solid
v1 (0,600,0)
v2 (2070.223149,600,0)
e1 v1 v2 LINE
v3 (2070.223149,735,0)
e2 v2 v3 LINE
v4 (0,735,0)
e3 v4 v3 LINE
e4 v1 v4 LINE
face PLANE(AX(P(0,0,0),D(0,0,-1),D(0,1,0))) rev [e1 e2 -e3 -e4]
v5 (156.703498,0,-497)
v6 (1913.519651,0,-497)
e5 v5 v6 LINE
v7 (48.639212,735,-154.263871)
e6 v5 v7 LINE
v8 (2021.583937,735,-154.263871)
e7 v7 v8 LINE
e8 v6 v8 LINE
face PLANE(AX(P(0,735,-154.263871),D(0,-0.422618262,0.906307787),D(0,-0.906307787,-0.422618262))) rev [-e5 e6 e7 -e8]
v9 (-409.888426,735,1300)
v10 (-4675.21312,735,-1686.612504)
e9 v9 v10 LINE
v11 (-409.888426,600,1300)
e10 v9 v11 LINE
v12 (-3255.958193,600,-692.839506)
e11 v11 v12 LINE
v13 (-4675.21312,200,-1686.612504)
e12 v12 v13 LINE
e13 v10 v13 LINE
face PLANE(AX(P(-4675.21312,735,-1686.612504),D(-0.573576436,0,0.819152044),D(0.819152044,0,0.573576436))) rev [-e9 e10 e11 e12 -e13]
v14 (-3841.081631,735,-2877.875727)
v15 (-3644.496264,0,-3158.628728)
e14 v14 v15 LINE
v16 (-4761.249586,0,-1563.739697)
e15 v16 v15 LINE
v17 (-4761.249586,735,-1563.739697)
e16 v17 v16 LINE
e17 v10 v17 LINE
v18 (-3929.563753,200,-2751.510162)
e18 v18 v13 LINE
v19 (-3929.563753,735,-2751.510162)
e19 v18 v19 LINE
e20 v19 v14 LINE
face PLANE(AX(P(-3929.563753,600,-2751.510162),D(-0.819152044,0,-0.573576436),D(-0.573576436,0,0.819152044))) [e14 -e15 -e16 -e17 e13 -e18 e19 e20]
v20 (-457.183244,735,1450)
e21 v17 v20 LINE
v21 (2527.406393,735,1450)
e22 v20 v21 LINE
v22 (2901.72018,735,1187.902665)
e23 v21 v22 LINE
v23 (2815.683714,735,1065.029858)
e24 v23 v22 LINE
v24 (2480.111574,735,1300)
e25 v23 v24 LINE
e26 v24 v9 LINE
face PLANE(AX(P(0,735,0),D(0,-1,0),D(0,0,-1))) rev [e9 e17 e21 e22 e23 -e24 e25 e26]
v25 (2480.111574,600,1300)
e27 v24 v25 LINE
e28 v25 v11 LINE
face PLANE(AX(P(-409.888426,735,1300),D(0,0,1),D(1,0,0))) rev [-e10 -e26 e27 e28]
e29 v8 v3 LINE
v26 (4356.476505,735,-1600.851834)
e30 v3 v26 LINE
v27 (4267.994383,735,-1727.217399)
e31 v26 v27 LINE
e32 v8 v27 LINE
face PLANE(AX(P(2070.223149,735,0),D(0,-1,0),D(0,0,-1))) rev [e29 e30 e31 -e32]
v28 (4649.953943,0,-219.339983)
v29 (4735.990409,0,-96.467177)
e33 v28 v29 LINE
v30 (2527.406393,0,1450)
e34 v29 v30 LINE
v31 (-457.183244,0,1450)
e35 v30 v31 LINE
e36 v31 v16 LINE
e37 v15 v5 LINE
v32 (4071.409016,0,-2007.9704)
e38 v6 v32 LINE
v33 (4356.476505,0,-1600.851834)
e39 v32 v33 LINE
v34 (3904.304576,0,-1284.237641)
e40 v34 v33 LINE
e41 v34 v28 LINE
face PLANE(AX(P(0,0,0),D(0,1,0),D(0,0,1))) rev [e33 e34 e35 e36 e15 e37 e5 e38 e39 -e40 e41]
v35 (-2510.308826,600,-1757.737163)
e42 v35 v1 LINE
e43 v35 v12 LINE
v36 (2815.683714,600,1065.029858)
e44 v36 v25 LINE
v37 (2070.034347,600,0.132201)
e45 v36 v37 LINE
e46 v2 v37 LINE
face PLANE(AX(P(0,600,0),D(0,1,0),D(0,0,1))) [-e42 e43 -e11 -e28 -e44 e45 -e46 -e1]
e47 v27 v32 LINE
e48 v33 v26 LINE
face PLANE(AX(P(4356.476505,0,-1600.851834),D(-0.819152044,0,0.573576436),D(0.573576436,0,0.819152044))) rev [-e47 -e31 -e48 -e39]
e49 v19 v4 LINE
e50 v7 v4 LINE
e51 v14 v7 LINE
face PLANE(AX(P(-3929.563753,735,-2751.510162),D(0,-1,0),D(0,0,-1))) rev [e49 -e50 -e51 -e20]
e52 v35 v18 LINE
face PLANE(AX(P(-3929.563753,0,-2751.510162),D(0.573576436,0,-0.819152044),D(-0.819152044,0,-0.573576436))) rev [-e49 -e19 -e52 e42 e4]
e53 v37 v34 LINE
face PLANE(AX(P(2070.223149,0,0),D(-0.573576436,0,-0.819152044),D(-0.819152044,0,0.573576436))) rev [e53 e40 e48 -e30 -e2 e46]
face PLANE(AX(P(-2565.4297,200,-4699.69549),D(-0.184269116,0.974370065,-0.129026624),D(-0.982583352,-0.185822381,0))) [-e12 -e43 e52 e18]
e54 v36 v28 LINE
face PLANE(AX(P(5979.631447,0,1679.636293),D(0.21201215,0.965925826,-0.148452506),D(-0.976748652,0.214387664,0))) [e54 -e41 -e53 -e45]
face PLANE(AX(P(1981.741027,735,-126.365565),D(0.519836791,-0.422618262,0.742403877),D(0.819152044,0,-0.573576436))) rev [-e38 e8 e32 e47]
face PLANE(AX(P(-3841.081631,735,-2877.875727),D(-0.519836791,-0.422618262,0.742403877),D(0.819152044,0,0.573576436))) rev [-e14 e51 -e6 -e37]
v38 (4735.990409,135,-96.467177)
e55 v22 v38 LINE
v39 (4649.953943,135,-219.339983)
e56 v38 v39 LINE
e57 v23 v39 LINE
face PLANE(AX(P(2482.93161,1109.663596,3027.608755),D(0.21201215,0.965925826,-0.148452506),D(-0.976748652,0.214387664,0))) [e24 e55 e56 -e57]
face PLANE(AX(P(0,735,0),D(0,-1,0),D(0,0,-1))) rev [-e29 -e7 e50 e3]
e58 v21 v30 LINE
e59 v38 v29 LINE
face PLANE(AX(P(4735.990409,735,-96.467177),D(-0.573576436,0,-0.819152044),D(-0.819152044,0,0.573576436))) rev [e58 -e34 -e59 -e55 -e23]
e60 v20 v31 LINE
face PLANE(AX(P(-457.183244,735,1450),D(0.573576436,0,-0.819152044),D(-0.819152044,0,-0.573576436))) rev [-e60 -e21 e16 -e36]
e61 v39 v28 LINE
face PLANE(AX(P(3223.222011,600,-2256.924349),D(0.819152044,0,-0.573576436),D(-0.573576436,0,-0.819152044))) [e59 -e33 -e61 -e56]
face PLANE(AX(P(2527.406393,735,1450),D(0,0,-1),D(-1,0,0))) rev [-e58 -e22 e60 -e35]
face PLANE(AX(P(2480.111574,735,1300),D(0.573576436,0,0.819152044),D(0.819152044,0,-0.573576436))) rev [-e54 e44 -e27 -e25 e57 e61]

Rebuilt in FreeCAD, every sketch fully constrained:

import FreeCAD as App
import Part
import Sketcher
from FreeCAD import Vector
Q = App.Units.Quantity

doc = App.newDocument("Part")
params = doc.addObject("Spreadsheet::Sheet", "Params")
for row, (alias, value) in enumerate([
    ("sketch1_width", "2890 mm"),
    ("sketch1_length", "1300 mm"),
    ("sketch1_length2", "5207 mm"),
    ("sketch1_length3", "2239 mm"),
    ("pad1_length", "600 mm"),
    ("sketch2_width", "2890 mm"),
    ("sketch2_length", "150 mm"),
    ("sketch2_length2", "5207 mm"),
    ("pad2_length", "135 mm"),
    ("pad2_length2", "600 mm"),
    ("sketch3_width", "497 mm"),
    ("sketch3_height", "734.999999 mm"),
    ("sketch4_length", "2791 mm"),
    ("sketch5_height", "599.999999 mm"),
    ("pocket1_length", "1300 mm"),
    ("sketch6_height", "599.999999 mm"),
    ("sketch7_height", "534.999999 mm"),
    ("pocket3_length", "1300 mm"),
], start=1):
    params.set(f"A{row}", alias)
    params.set(f"B{row}", "=" + value)
    params.setAlias(f"B{row}", alias)

body = doc.addObject("PartDesign::Body", "Body")

sketch1 = body.newObject("Sketcher::SketchObject", "Sketch")
sketch1.AttachmentSupport = (doc.getObject("XZ_Plane"), [""])
sketch1.MapMode = "FlatFace"
sketch1.addGeometry(Part.LineSegment(Vector(2070, 0, 0), Vector(0, 0, 0)), False)
sketch1.addGeometry(Part.LineSegment(Vector(0, 0, 0), Vector(-3930, -2752, 0)), False)
sketch1.addGeometry(Part.LineSegment(Vector(-3930, -2752, 0), Vector(-4675, -1687, 0)), False)
sketch1.addGeometry(Part.LineSegment(Vector(-4675, -1687, 0), Vector(-410, 1300, 0)), False)
sketch1.addGeometry(Part.LineSegment(Vector(-410, 1300, 0), Vector(2480, 1300, 0)), False)
sketch1.addGeometry(Part.LineSegment(Vector(2480, 1300, 0), Vector(2816, 1065, 0)), False)
sketch1.addGeometry(Part.LineSegment(Vector(2816, 1065, 0), Vector(4650, -219, 0)), False)
sketch1.addGeometry(Part.LineSegment(Vector(4650, -219, 0), Vector(3904, -1284, 0)), False)
sketch1.addGeometry(Part.LineSegment(Vector(3904, -1284, 0), Vector(2070, 0, 0)), False)
sketch1.addConstraint(Sketcher.Constraint("Coincident", 0, 2, 1, 1))
sketch1.addConstraint(Sketcher.Constraint("Coincident", 1, 2, 2, 1))
sketch1.addConstraint(Sketcher.Constraint("Coincident", 2, 2, 3, 1))
sketch1.addConstraint(Sketcher.Constraint("Coincident", 3, 2, 4, 1))
sketch1.addConstraint(Sketcher.Constraint("Coincident", 4, 2, 5, 1))
sketch1.addConstraint(Sketcher.Constraint("Coincident", 5, 2, 6, 1))
sketch1.addConstraint(Sketcher.Constraint("Coincident", 6, 2, 7, 1))
sketch1.addConstraint(Sketcher.Constraint("Coincident", 7, 2, 8, 1))
sketch1.addConstraint(Sketcher.Constraint("Coincident", 8, 2, 0, 1))
sketch1.addConstraint(Sketcher.Constraint("Horizontal", 0))
sketch1.addConstraint(Sketcher.Constraint("Horizontal", 4))
sketch1.addConstraint(Sketcher.Constraint("Coincident", 0, 2, -1, 1))
sketch1.addConstraint(Sketcher.Constraint("Perpendicular", 1, 2))
sketch1.addConstraint(Sketcher.Constraint("Perpendicular", 2, 3))
sketch1.addConstraint(Sketcher.Constraint("Parallel", 5, 6))
sketch1.addConstraint(Sketcher.Constraint("Perpendicular", 6, 7))
sketch1.addConstraint(Sketcher.Constraint("Perpendicular", 7, 8))
sketch1.addConstraint(Sketcher.Constraint("Equal", 2, 7))
sketch1.addConstraint(Sketcher.Constraint("Equal", 6, 8))
sketch1.addConstraint(Sketcher.Constraint("DistanceX", 4, 1, 4, 2, Q("2890 mm")))
sketch1.addConstraint(Sketcher.Constraint("Angle", 1, Q("-145 deg")))
sketch1.addConstraint(Sketcher.Constraint("Angle", 5, Q("-35 deg")))
sketch1.addConstraint(Sketcher.Constraint("Distance", 2, Q("1300 mm")))
sketch1.addConstraint(Sketcher.Constraint("Distance", 3, Q("5207 mm")))
sketch1.addConstraint(Sketcher.Constraint("Distance", 6, Q("2239 mm")))
sketch1.addConstraint(Sketcher.Constraint("DistanceY", -1, 1, 3, 2, Q("1300 mm")))
sketch1.setExpression("Constraints[19]", "Params.sketch1_width")
sketch1.setExpression("Constraints[22]", "Params.sketch1_length")
sketch1.setExpression("Constraints[23]", "Params.sketch1_length2")
sketch1.setExpression("Constraints[24]", "Params.sketch1_length3")
pad1 = body.newObject("PartDesign::Pad", "Pad")
pad1.Profile = sketch1
pad1.setExpression("Length", "Params.pad1_length")
pad1.Reversed = True

sketch2 = body.newObject("Sketcher::SketchObject", "Sketch001")
sketch2.AttachmentSupport = (doc.getObject("XZ_Plane"), [""])
sketch2.MapMode = "FlatFace"
sketch2.AttachmentOffset = App.Placement(Vector(0, 0, -600), App.Rotation())
sketch2.addGeometry(Part.LineSegment(Vector(4736, -96, 0), Vector(4650, -219, 0)), False)
sketch2.addGeometry(Part.LineSegment(Vector(4650, -219, 0), Vector(2480, 1300, 0)), False)
sketch2.addGeometry(Part.LineSegment(Vector(2480, 1300, 0), Vector(-410, 1300, 0)), False)
sketch2.addGeometry(Part.LineSegment(Vector(-410, 1300, 0), Vector(-4675, -1687, 0)), False)
sketch2.addGeometry(Part.LineSegment(Vector(-4675, -1687, 0), Vector(-4761, -1564, 0)), False)
sketch2.addGeometry(Part.LineSegment(Vector(-4761, -1564, 0), Vector(-457, 1450, 0)), False)
sketch2.addGeometry(Part.LineSegment(Vector(-457, 1450, 0), Vector(2527, 1450, 0)), False)
sketch2.addGeometry(Part.LineSegment(Vector(2527, 1450, 0), Vector(4736, -96, 0)), False)
sketch2.addConstraint(Sketcher.Constraint("Coincident", 0, 2, 1, 1))
sketch2.addConstraint(Sketcher.Constraint("Coincident", 1, 2, 2, 1))
sketch2.addConstraint(Sketcher.Constraint("Coincident", 2, 2, 3, 1))
sketch2.addConstraint(Sketcher.Constraint("Coincident", 3, 2, 4, 1))
sketch2.addConstraint(Sketcher.Constraint("Coincident", 4, 2, 5, 1))
sketch2.addConstraint(Sketcher.Constraint("Coincident", 5, 2, 6, 1))
sketch2.addConstraint(Sketcher.Constraint("Coincident", 6, 2, 7, 1))
sketch2.addConstraint(Sketcher.Constraint("Coincident", 7, 2, 0, 1))
sketch2.addConstraint(Sketcher.Constraint("Horizontal", 2))
sketch2.addConstraint(Sketcher.Constraint("Horizontal", 6))
sketch2.addConstraint(Sketcher.Constraint("Perpendicular", 0, 1))
sketch2.addConstraint(Sketcher.Constraint("Perpendicular", 3, 4))
sketch2.addConstraint(Sketcher.Constraint("Perpendicular", 4, 5))
sketch2.addConstraint(Sketcher.Constraint("Parallel", 1, 7))
sketch2.addConstraint(Sketcher.Constraint("Equal", 0, 4))
sketch2.addConstraint(Sketcher.Constraint("DistanceX", 2, 2, 2, 1, Q("2890 mm")))
sketch2.addConstraint(Sketcher.Constraint("Angle", 0, Q("-125 deg")))
sketch2.addConstraint(Sketcher.Constraint("Angle", 3, Q("-145 deg")))
sketch2.addConstraint(Sketcher.Constraint("Distance", 0, Q("150 mm")))
sketch2.addConstraint(Sketcher.Constraint("Distance", 3, Q("5207 mm")))
sketch2.addConstraint(Sketcher.Constraint("DistanceY", -1, 1, 1, 2, Q("1300 mm")))
sketch2.addConstraint(Sketcher.Constraint("DistanceY", -1, 1, 5, 2, Q("1450 mm")))
sketch2.addConstraint(Sketcher.Constraint("DistanceX", 3, 2, -1, 1, Q("4675.21312 mm")))
sketch2.addConstraint(Sketcher.Constraint("DistanceX", -1, 1, 7, 2, Q("4735.990409 mm")))
sketch2.setExpression("Constraints[15]", "Params.sketch2_width")
sketch2.setExpression("Constraints[18]", "Params.sketch2_length")
sketch2.setExpression("Constraints[19]", "Params.sketch2_length2")
pad2 = body.newObject("PartDesign::Pad", "Pad001")
pad2.Profile = sketch2
pad2.Type = "TwoLengths"
pad2.setExpression("Length", "Params.pad2_length")
pad2.setExpression("Length2", "Params.pad2_length2")
pad2.Reversed = True

sketch3 = body.newObject("Sketcher::SketchObject", "Sketch002")
sketch3.Placement = App.Placement(Vector(-3929.563753, 0, -2751.510162), App.Rotation(Vector(-0.573576436, 0, 0.819152044), Vector(0, 0.999999999, 0), Vector(-0.819152044, 0, -0.573576436), "ZXY"))
sketch3.addGeometry(Part.LineSegment(Vector(0, 0, 0), Vector(0, 735, 0)), False)
sketch3.addGeometry(Part.LineSegment(Vector(0, 735, 0), Vector(-154, 735, 0)), False)
sketch3.addGeometry(Part.LineSegment(Vector(-154, 735, 0), Vector(-497, 0, 0)), False)
sketch3.addGeometry(Part.LineSegment(Vector(-497, 0, 0), Vector(0, 0, 0)), False)
sketch3.addConstraint(Sketcher.Constraint("Coincident", 0, 2, 1, 1))
sketch3.addConstraint(Sketcher.Constraint("Coincident", 1, 2, 2, 1))
sketch3.addConstraint(Sketcher.Constraint("Coincident", 2, 2, 3, 1))
sketch3.addConstraint(Sketcher.Constraint("Coincident", 3, 2, 0, 1))
sketch3.addConstraint(Sketcher.Constraint("Vertical", 0))
sketch3.addConstraint(Sketcher.Constraint("Horizontal", 1))
sketch3.addConstraint(Sketcher.Constraint("Horizontal", 3))
sketch3.addConstraint(Sketcher.Constraint("Coincident", 3, 2, -1, 1))
sketch3.addConstraint(Sketcher.Constraint("DistanceX", 3, 1, 3, 2, Q("497 mm")))
sketch3.addConstraint(Sketcher.Constraint("DistanceY", 0, 1, 0, 2, Q("734.999999 mm")))
sketch3.addConstraint(Sketcher.Constraint("Angle", 2, Q("-115 deg")))
sketch3.setExpression("Constraints[8]", "Params.sketch3_width")
sketch3.setExpression("Constraints[9]", "Params.sketch3_height")

sketch4 = body.newObject("Sketcher::SketchObject", "Sketch003")
sketch4.AttachmentSupport = (doc.getObject("XZ_Plane"), [""])
sketch4.MapMode = "FlatFace"
sketch4.AttachmentOffset = App.Placement(Vector(0, 0, -600), App.Rotation())
sketch4.addGeometry(Part.LineSegment(Vector(-3930, -2752, 0), Vector(0, 0, 0)), False)
sketch4.addGeometry(Part.LineSegment(Vector(0, 0, 0), Vector(2070, 0, 0)), False)
sketch4.addGeometry(Part.LineSegment(Vector(2070, 0, 0), Vector(4356, -1601, 0)), False)
sketch4.addConstraint(Sketcher.Constraint("Coincident", 0, 2, 1, 1))
sketch4.addConstraint(Sketcher.Constraint("Coincident", 1, 2, 2, 1))
sketch4.addConstraint(Sketcher.Constraint("Horizontal", 1))
sketch4.addConstraint(Sketcher.Constraint("Coincident", 0, 2, -1, 1))
sketch4.addConstraint(Sketcher.Constraint("Angle", 0, Q("35 deg")))
sketch4.addConstraint(Sketcher.Constraint("Angle", 2, Q("-35 deg")))
sketch4.addConstraint(Sketcher.Constraint("Distance", 2, Q("2791 mm")))
sketch4.addConstraint(Sketcher.Constraint("DistanceX", 1, 1, 1, 2, Q("2070.223149 mm")))
sketch4.addConstraint(Sketcher.Constraint("DistanceX", 0, 1, 1, 2, Q("5999.786902 mm")))
sketch4.setExpression("Constraints[6]", "Params.sketch4_length")
doc.recompute()

additivepipe = body.newObject("PartDesign::AdditivePipe", "AdditivePipe")
additivepipe.Profile = sketch3
additivepipe.Spine = (sketch4, ["Edge1", "Edge2", "Edge3"])
additivepipe.Transition = "Right corner"

sketch5 = body.newObject("Sketcher::SketchObject", "Sketch004")
sketch5.Placement = App.Placement(Vector(681.082565, 0, 972.686708), App.Rotation(Vector(0.819152044, 0, -0.573576436), Vector(0, 0.999999999, 0), Vector(0.573576436, 0, 0.819152044), "ZXY"))
sketch5.addGeometry(Part.LineSegment(Vector(1696, 600, 0), Vector(3935, 0, 0)), False)
sketch5.addGeometry(Part.LineSegment(Vector(3935, 0, 0), Vector(3935, 600, 0)), False)
sketch5.addGeometry(Part.LineSegment(Vector(3935, 600, 0), Vector(1696, 600, 0)), False)
sketch5.addConstraint(Sketcher.Constraint("Coincident", 0, 2, 1, 1))
sketch5.addConstraint(Sketcher.Constraint("Coincident", 1, 2, 2, 1))
sketch5.addConstraint(Sketcher.Constraint("Coincident", 2, 2, 0, 1))
sketch5.addConstraint(Sketcher.Constraint("Vertical", 1))
sketch5.addConstraint(Sketcher.Constraint("Horizontal", 2))
sketch5.addConstraint(Sketcher.Constraint("PointOnObject", 0, 2, -1))
sketch5.addConstraint(Sketcher.Constraint("DistanceY", 1, 1, 1, 2, Q("599.999999 mm")))
sketch5.addConstraint(Sketcher.Constraint("Angle", 0, Q("-15 deg")))
sketch5.addConstraint(Sketcher.Constraint("DistanceX", -1, 1, 0, 2, Q("3934.827521 mm")))
sketch5.setExpression("Constraints[6]", "Params.sketch5_height")
pocket1 = body.newObject("PartDesign::Pocket", "Pocket")
pocket1.Profile = sketch5
pocket1.setExpression("Length", "Params.pocket1_length")
pocket1.Reversed = True

sketch6 = body.newObject("Sketcher::SketchObject", "Sketch005")
sketch6.Placement = App.Placement(Vector(1426.731933, 0, 2037.584366), App.Rotation(Vector(-0.819152044, 0, 0.573576436), Vector(0, 0.999999999, 0), Vector(-0.573576436, 0, -0.819152044), "ZXY"))
sketch6.addGeometry(Part.LineSegment(Vector(-3935, 135, 0), Vector(-1696, 735, 0)), False)
sketch6.addGeometry(Part.LineSegment(Vector(-1696, 735, 0), Vector(-3935, 735, 0)), False)
sketch6.addGeometry(Part.LineSegment(Vector(-3935, 735, 0), Vector(-3935, 135, 0)), False)
sketch6.addConstraint(Sketcher.Constraint("Coincident", 0, 2, 1, 1))
sketch6.addConstraint(Sketcher.Constraint("Coincident", 1, 2, 2, 1))
sketch6.addConstraint(Sketcher.Constraint("Coincident", 2, 2, 0, 1))
sketch6.addConstraint(Sketcher.Constraint("Horizontal", 1))
sketch6.addConstraint(Sketcher.Constraint("Vertical", 2))
sketch6.addConstraint(Sketcher.Constraint("DistanceY", 2, 2, 2, 1, Q("599.999999 mm")))
sketch6.addConstraint(Sketcher.Constraint("Angle", 0, Q("15 deg")))
sketch6.addConstraint(Sketcher.Constraint("DistanceY", -1, 1, 0, 2, Q("734.999999 mm")))
sketch6.addConstraint(Sketcher.Constraint("DistanceX", 0, 2, -1, 1, Q("1695.597039 mm")))
sketch6.setExpression("Constraints[5]", "Params.sketch6_height")
pocket2 = body.newObject("PartDesign::Pocket", "Pocket001")
pocket2.Profile = sketch6
pocket2.Type = "ThroughAll"

sketch7 = body.newObject("Sketcher::SketchObject", "Sketch006")
sketch7.Placement = App.Placement(Vector(-745.649367, 0, 1064.897658), App.Rotation(Vector(-0.819152044, 0, -0.573576436), Vector(0, 0.999999999, 0), Vector(0.573576436, 0, -0.819152044), "ZXY"))
sketch7.addGeometry(Part.LineSegment(Vector(2480, 735, 0), Vector(4797, 200, 0)), False)
sketch7.addGeometry(Part.LineSegment(Vector(4797, 200, 0), Vector(4797, 735, 0)), False)
sketch7.addGeometry(Part.LineSegment(Vector(4797, 735, 0), Vector(2480, 735, 0)), False)
sketch7.addConstraint(Sketcher.Constraint("Coincident", 0, 2, 1, 1))
sketch7.addConstraint(Sketcher.Constraint("Coincident", 1, 2, 2, 1))
sketch7.addConstraint(Sketcher.Constraint("Coincident", 2, 2, 0, 1))
sketch7.addConstraint(Sketcher.Constraint("Vertical", 1))
sketch7.addConstraint(Sketcher.Constraint("Horizontal", 2))
sketch7.addConstraint(Sketcher.Constraint("DistanceY", 1, 1, 1, 2, Q("534.999999 mm")))
sketch7.addConstraint(Sketcher.Constraint("Angle", 0, Q("-13 deg")))
sketch7.addConstraint(Sketcher.Constraint("DistanceY", -1, 1, 0, 2, Q("200 mm")))
sketch7.addConstraint(Sketcher.Constraint("DistanceX", -1, 1, 0, 2, Q("4797.11157 mm")))
sketch7.setExpression("Constraints[5]", "Params.sketch7_height")
pocket3 = body.newObject("PartDesign::Pocket", "Pocket002")
pocket3.Profile = sketch7
pocket3.setExpression("Length", "Params.pocket3_length")
pocket3.Reversed = True

doc.recompute()
